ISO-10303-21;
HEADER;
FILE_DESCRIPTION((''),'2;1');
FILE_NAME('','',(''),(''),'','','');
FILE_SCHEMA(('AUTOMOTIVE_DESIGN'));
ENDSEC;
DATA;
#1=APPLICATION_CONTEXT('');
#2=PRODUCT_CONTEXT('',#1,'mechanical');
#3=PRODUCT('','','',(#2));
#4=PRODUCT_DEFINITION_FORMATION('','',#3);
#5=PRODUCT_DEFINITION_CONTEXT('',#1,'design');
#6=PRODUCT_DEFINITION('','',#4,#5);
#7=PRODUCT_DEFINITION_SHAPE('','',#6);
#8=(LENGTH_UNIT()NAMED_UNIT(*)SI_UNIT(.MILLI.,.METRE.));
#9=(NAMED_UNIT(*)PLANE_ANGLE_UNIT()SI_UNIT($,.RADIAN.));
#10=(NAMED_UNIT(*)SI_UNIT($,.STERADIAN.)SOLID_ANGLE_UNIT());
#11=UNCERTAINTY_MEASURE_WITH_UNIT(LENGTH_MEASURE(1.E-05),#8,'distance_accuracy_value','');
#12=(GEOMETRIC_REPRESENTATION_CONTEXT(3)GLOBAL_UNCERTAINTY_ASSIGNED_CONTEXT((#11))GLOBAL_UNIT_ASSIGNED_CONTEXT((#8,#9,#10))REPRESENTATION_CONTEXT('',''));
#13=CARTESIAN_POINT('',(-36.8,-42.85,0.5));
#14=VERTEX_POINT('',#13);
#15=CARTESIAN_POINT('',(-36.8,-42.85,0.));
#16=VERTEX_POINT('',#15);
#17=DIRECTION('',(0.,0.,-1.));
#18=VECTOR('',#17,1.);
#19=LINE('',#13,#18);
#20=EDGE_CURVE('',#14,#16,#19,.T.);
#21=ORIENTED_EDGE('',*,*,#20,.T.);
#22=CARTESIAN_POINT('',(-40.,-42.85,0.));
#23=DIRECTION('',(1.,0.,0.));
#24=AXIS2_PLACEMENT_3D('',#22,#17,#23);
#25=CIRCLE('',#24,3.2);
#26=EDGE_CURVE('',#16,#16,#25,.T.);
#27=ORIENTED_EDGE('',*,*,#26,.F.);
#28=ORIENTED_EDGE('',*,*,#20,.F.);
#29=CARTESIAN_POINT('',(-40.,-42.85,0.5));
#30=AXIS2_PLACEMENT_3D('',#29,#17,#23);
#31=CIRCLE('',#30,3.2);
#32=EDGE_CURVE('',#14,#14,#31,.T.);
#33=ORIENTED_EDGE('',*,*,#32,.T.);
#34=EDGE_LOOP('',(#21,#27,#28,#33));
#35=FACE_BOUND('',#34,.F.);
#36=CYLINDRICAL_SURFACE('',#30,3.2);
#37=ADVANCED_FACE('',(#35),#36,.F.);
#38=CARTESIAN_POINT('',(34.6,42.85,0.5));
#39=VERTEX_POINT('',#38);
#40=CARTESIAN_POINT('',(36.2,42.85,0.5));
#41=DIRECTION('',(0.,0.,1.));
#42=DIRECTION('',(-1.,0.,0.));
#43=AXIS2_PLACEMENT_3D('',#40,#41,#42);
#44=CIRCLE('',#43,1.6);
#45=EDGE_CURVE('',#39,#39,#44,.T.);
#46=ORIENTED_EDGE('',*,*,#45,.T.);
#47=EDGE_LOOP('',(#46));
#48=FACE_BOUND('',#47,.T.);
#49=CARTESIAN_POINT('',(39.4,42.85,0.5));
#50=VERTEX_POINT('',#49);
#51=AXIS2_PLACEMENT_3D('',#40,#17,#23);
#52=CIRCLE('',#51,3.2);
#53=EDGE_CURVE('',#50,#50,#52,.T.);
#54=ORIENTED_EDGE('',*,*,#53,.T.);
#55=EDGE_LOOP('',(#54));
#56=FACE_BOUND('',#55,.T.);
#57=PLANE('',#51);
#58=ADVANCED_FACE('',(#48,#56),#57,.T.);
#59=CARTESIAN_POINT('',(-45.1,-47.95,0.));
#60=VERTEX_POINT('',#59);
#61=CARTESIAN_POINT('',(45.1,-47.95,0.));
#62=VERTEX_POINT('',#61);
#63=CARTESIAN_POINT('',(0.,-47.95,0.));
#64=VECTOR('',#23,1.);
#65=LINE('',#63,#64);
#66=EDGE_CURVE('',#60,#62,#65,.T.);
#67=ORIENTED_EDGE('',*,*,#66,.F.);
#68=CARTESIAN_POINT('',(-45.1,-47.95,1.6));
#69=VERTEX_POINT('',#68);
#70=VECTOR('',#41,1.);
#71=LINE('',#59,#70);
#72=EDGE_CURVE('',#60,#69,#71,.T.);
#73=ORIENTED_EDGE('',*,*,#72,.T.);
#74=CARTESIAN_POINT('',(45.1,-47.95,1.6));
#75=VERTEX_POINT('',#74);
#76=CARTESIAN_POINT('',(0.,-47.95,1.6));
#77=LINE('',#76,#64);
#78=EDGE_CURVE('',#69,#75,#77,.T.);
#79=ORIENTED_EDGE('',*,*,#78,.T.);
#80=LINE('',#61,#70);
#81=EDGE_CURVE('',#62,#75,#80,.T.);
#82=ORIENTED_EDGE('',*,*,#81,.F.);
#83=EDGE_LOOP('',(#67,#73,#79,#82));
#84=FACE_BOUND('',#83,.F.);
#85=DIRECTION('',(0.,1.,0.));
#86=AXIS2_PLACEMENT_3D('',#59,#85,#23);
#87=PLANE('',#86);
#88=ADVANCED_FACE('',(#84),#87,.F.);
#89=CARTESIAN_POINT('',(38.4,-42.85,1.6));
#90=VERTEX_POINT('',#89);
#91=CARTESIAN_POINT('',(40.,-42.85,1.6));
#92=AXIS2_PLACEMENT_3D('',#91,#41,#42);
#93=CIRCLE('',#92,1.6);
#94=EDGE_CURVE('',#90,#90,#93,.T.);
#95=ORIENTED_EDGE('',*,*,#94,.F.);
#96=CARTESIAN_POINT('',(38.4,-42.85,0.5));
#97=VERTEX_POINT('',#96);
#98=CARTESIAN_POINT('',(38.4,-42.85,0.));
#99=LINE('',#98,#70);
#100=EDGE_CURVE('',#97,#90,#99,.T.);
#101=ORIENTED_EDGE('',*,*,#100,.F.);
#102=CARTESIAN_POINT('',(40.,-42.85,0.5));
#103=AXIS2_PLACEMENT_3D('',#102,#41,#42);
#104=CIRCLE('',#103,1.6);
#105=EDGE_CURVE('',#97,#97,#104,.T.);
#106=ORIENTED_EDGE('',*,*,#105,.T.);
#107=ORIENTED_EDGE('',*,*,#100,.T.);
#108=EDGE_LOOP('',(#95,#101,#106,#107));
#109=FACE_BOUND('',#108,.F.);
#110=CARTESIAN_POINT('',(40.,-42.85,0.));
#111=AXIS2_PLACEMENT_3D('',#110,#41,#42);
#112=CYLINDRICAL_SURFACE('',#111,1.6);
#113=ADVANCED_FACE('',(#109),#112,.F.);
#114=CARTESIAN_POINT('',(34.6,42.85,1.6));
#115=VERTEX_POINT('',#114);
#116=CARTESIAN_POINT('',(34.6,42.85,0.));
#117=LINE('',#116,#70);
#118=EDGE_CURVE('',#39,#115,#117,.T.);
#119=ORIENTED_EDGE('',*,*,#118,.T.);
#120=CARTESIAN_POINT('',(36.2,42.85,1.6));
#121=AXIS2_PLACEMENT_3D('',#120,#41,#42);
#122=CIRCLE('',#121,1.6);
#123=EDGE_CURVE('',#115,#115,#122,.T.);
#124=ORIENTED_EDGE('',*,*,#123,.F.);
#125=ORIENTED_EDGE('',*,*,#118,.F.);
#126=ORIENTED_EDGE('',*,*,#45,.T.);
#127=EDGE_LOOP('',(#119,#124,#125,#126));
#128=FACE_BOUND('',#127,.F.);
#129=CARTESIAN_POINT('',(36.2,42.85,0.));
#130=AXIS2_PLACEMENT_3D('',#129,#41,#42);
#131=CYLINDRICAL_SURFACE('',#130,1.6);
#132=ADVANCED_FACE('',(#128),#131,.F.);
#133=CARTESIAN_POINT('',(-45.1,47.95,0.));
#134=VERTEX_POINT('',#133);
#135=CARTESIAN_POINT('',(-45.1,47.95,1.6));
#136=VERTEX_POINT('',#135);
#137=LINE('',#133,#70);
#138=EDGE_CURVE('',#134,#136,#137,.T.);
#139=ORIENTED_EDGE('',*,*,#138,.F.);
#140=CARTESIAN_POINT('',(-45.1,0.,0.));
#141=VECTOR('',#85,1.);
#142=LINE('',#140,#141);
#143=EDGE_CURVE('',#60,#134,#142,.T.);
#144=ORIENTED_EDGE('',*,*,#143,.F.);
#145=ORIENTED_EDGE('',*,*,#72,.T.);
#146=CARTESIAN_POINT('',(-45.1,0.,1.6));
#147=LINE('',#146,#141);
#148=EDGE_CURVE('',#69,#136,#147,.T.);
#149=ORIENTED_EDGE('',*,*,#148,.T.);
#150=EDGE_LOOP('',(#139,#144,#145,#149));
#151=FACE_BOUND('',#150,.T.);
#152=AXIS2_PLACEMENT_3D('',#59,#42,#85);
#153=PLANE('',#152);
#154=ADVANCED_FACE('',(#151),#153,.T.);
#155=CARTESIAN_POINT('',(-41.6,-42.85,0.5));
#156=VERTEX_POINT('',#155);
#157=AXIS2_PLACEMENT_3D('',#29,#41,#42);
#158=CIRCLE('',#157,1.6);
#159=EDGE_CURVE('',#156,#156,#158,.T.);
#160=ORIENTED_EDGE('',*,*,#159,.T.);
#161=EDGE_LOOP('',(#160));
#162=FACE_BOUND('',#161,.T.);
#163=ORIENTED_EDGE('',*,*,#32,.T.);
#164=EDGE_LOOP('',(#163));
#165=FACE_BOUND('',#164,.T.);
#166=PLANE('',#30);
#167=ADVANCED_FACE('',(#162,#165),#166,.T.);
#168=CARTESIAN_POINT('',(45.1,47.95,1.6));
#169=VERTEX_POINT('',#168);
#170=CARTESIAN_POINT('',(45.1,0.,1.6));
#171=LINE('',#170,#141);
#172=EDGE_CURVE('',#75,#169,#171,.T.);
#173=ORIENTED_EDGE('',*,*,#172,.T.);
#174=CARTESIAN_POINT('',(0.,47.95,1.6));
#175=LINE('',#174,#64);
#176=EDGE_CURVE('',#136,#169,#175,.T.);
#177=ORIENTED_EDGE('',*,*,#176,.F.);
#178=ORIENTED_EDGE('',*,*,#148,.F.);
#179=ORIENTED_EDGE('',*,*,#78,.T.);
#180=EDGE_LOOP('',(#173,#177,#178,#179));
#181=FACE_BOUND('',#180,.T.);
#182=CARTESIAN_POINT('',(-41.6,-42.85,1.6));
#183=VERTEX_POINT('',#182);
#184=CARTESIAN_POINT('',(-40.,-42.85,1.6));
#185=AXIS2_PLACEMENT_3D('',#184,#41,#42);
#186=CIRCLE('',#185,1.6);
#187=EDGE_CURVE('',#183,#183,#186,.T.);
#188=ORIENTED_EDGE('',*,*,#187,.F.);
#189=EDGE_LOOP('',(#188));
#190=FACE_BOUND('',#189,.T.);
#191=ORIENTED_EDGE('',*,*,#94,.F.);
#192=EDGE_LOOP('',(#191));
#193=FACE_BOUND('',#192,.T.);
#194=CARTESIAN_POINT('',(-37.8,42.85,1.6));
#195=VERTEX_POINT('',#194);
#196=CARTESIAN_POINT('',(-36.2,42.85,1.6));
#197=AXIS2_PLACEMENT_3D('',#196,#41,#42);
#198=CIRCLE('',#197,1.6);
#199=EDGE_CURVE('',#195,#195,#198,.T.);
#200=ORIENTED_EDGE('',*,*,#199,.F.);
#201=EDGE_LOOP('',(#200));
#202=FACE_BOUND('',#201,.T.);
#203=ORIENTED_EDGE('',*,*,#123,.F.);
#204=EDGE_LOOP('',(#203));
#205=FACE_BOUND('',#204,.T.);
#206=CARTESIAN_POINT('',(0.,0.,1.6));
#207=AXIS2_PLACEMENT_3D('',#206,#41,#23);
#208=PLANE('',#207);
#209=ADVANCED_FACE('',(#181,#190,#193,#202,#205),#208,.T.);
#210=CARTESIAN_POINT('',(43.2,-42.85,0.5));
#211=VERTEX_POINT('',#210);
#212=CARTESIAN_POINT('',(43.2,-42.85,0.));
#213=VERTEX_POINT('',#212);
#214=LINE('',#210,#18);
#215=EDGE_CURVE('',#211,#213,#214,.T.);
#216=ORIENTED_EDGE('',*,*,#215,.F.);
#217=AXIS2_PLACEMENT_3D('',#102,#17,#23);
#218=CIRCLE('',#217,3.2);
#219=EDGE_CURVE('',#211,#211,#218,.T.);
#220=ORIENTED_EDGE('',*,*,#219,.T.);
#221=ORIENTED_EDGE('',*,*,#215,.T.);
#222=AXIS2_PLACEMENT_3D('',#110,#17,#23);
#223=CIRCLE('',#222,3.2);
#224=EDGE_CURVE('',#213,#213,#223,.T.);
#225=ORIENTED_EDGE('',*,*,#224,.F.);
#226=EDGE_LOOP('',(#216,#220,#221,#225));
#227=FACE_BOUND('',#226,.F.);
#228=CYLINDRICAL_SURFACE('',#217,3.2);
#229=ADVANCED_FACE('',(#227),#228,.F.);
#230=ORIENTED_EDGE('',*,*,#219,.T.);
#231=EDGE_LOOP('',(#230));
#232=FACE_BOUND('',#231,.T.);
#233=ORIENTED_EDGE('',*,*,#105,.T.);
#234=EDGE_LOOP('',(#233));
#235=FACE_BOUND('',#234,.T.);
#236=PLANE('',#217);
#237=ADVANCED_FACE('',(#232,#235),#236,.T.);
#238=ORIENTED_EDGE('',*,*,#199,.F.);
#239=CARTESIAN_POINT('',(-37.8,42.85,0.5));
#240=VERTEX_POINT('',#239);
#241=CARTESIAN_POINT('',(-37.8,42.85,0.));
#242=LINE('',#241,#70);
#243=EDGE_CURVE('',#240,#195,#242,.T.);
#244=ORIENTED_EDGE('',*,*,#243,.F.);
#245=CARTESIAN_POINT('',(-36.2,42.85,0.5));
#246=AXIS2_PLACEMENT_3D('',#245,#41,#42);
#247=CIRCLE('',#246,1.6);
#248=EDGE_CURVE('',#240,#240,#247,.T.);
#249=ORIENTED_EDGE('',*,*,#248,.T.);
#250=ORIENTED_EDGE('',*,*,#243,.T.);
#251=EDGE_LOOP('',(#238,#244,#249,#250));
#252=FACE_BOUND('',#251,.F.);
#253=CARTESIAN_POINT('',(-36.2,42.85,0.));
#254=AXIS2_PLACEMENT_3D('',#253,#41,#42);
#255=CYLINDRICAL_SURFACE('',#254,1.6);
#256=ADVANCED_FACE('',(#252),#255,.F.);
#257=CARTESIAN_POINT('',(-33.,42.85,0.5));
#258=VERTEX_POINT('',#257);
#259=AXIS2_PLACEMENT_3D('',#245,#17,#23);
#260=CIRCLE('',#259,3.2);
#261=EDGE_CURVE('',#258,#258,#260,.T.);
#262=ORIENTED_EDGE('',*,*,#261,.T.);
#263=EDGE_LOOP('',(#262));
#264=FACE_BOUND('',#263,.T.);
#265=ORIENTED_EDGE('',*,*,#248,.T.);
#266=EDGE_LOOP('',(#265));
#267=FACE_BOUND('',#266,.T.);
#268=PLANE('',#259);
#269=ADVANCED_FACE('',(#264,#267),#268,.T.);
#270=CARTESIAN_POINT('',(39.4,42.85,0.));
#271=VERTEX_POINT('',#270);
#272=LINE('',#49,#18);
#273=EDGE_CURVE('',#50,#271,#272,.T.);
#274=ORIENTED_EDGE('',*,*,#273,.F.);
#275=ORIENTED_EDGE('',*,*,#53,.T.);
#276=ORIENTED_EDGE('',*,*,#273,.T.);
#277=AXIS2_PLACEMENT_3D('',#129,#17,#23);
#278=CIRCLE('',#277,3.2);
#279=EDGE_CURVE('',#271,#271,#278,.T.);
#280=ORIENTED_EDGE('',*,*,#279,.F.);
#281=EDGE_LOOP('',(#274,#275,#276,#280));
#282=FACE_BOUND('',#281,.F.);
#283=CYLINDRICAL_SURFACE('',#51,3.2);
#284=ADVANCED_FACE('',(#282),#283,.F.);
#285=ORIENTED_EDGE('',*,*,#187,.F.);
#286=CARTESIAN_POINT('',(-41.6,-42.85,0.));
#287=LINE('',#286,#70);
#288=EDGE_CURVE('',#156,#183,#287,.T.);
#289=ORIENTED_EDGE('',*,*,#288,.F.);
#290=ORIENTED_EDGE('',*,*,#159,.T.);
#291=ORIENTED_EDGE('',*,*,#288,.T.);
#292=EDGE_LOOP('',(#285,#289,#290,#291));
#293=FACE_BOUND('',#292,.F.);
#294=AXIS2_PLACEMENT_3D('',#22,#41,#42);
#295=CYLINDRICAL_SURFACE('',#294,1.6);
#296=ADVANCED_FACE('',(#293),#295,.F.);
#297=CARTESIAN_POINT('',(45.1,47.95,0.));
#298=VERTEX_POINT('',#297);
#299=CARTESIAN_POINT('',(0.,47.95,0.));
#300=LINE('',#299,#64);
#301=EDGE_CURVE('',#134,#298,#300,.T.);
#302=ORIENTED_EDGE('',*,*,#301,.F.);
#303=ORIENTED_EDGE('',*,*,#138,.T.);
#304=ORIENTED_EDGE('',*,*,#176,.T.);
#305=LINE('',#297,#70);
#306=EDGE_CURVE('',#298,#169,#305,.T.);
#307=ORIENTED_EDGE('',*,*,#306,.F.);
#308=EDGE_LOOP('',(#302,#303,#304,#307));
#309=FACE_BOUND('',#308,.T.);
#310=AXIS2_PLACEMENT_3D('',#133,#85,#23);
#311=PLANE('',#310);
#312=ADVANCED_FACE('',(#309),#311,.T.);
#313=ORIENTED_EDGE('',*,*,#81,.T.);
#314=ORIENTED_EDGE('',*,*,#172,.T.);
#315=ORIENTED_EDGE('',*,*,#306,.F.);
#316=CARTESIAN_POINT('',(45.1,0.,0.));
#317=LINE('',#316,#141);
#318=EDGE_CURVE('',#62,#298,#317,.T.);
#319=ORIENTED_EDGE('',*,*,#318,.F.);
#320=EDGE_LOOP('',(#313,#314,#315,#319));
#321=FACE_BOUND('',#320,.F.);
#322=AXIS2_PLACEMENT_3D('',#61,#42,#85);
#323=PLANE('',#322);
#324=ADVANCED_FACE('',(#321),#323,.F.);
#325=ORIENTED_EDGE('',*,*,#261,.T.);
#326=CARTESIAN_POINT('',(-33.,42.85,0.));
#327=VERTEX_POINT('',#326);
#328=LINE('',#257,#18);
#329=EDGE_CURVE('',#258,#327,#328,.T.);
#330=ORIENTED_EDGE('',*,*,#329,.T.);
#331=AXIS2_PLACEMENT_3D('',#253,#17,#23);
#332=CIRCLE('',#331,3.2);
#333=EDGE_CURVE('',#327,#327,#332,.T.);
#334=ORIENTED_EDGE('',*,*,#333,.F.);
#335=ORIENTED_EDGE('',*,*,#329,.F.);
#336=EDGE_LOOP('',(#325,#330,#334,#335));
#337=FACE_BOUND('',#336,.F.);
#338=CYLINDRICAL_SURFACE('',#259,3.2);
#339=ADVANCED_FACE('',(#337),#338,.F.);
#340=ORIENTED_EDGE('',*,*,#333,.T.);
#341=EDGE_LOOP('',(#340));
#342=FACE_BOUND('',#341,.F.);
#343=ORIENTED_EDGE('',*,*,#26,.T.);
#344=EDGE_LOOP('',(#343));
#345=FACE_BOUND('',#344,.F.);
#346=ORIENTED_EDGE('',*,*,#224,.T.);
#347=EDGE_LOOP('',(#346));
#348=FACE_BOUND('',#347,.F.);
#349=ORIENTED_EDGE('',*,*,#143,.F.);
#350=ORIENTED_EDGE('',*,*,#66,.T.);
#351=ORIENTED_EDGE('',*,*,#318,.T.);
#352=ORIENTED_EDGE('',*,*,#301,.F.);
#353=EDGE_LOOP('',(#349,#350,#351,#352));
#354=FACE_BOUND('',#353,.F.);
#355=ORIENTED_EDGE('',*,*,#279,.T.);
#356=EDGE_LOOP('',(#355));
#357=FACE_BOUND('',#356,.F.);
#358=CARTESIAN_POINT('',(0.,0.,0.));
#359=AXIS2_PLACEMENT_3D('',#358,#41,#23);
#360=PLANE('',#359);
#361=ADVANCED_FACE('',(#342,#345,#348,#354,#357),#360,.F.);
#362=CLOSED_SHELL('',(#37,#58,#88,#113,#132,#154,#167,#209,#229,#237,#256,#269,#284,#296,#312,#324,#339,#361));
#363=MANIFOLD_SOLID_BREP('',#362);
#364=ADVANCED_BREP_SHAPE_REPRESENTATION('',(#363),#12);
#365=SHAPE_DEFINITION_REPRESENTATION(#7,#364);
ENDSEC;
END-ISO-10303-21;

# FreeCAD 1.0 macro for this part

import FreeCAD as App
import Part
import Sketcher


def add_polygon(sketch, points):
    """Adds a closed chain of lines whose ends are joined by coincident constraints."""
    first, n = sketch.GeometryCount, len(points)
    for a, b in zip(points, points[1:] + points[:1]):
        sketch.addGeometry(Part.LineSegment(App.Vector(*a, 0), App.Vector(*b, 0)), False)
    for i in range(n):
        sketch.addConstraint(Sketcher.Constraint("Coincident", first + i, 2, first + (i + 1) % n, 1))

doc = App.newDocument("Part")
body = doc.addObject("PartDesign::Body", "Body")

sketch1 = body.newObject("Sketcher::SketchObject", "Sketch")
sketch1.AttachmentSupport = (doc.getObject("XY_Plane"), [""])
sketch1.MapMode = "FlatFace"
add_polygon(sketch1, [(-45, 48), (-45, -48), (45, -48), (45, 48)])
sketch1.addConstraint(Sketcher.Constraint("Vertical", 0))
sketch1.addConstraint(Sketcher.Constraint("Horizontal", 1))
sketch1.addConstraint(Sketcher.Constraint("Vertical", 2))
sketch1.addConstraint(Sketcher.Constraint("Horizontal", 3))
sketch1.addConstraint(Sketcher.Constraint("Symmetric", 0, 2, 2, 2, -1, 1))
sketch1.addConstraint(Sketcher.Constraint("DistanceX", 1, 1, 1, 2, 90.2))
sketch1.addConstraint(Sketcher.Constraint("DistanceY", 0, 2, 0, 1, 95.9))
pad1 = body.newObject("PartDesign::Pad", "Pad")
pad1.Profile = sketch1
pad1.Length = 1.6

sketch2 = body.newObject("Sketcher::SketchObject", "Sketch001")
sketch2.AttachmentSupport = (doc.getObject("XY_Plane"), [""])
sketch2.MapMode = "FlatFace"
sketch2.addGeometry(Part.Circle(App.Vector(-36.2, 42.9, 0), App.Vector(0, 0, 1), 1.6), False)
sketch2.addConstraint(Sketcher.Constraint("Diameter", 0, 3.2))
sketch2.addConstraint(Sketcher.Constraint("DistanceX", 0, 3, -1, 1, 36.2))
sketch2.addConstraint(Sketcher.Constraint("DistanceY", -1, 1, 0, 3, 42.85))
doc.recompute()
hole = body.newObject("PartDesign::Hole", "Hole")
hole.Profile = sketch2
hole.ThreadType = "None"
hole.Diameter = 3.2
hole.DepthType = "ThroughAll"
hole.HoleCutType = "Counterbore"
hole.HoleCutDiameter = 6.4
hole.HoleCutDepth = 0.5
hole.Reversed = True

sketch3 = body.newObject("Sketcher::SketchObject", "Sketch002")
sketch3.AttachmentSupport = (doc.getObject("XY_Plane"), [""])
sketch3.MapMode = "FlatFace"
sketch3.addGeometry(Part.Circle(App.Vector(-40, -42.9, 0), App.Vector(0, 0, 1), 1.6), False)
sketch3.addConstraint(Sketcher.Constraint("Diameter", 0, 3.2))
sketch3.addConstraint(Sketcher.Constraint("DistanceX", 0, 3, -1, 1, 40.0))
sketch3.addConstraint(Sketcher.Constraint("DistanceY", 0, 3, -1, 1, 42.85))
doc.recompute()
hole2 = body.newObject("PartDesign::Hole", "Hole001")
hole2.Profile = sketch3
hole2.ThreadType = "None"
hole2.Diameter = 3.2
hole2.DepthType = "ThroughAll"
hole2.HoleCutType = "Counterbore"
hole2.HoleCutDiameter = 6.4
hole2.HoleCutDepth = 0.5
hole2.Reversed = True

sketch4 = body.newObject("Sketcher::SketchObject", "Sketch003")
sketch4.AttachmentSupport = (doc.getObject("XY_Plane"), [""])
sketch4.MapMode = "FlatFace"
sketch4.addGeometry(Part.Circle(App.Vector(36.2, 42.9, 0), App.Vector(0, 0, 1), 1.6), False)
sketch4.addConstraint(Sketcher.Constraint("Diameter", 0, 3.2))
sketch4.addConstraint(Sketcher.Constraint("DistanceX", -1, 1, 0, 3, 36.2))
sketch4.addConstraint(Sketcher.Constraint("DistanceY", -1, 1, 0, 3, 42.85))
doc.recompute()
hole3 = body.newObject("PartDesign::Hole", "Hole002")
hole3.Profile = sketch4
hole3.ThreadType = "None"
hole3.Diameter = 3.2
hole3.DepthType = "ThroughAll"
hole3.HoleCutType = "Counterbore"
hole3.HoleCutDiameter = 6.4
hole3.HoleCutDepth = 0.5
hole3.Reversed = True

sketch5 = body.newObject("Sketcher::SketchObject", "Sketch004")
sketch5.AttachmentSupport = (doc.getObject("XY_Plane"), [""])
sketch5.MapMode = "FlatFace"
sketch5.addGeometry(Part.Circle(App.Vector(40, -42.9, 0), App.Vector(0, 0, 1), 1.6), False)
sketch5.addConstraint(Sketcher.Constraint("Diameter", 0, 3.2))
sketch5.addConstraint(Sketcher.Constraint("DistanceX", -1, 1, 0, 3, 40.0))
sketch5.addConstraint(Sketcher.Constraint("DistanceY", 0, 3, -1, 1, 42.85))
doc.recompute()
hole4 = body.newObject("PartDesign::Hole", "Hole003")
hole4.Profile = sketch5
hole4.ThreadType = "None"
hole4.Diameter = 3.2
hole4.DepthType = "ThroughAll"
hole4.HoleCutType = "Counterbore"
hole4.HoleCutDiameter = 6.4
hole4.HoleCutDepth = 0.5
hole4.Reversed = True

doc.recompute()
